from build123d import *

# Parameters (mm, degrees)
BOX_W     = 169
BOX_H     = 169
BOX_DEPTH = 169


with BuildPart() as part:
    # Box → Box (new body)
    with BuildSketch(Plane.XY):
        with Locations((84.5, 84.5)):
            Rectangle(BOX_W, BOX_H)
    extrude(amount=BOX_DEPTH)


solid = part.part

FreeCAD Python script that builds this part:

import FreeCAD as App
import Part
import Sketcher
from FreeCAD import Vector


def add_polygon(sketch, points):
    """Adds a closed chain of lines whose ends are joined by coincident constraints."""
    first, n = sketch.GeometryCount, len(points)
    for a, b in zip(points, points[1:] + points[:1]):
        sketch.addGeometry(Part.LineSegment(App.Vector(*a, 0), App.Vector(*b, 0)), False)
    for i in range(n):
        sketch.addConstraint(Sketcher.Constraint("Coincident", first + i, 2, first + (i + 1) % n, 1))

doc = App.newDocument("Part")
body = doc.addObject("PartDesign::Body", "Body")

# Sketch on XY plane
sketch1 = body.newObject("Sketcher::SketchObject", "Sketch")
sketch1.AttachmentSupport = (doc.getObject("XY_Plane"), [""])
sketch1.MapMode = "FlatFace"
add_polygon(sketch1, [(0, 169), (0, 0), (169, 0), (169, 169)])  # lines 0-3
sketch1.addConstraint(Sketcher.Constraint("Vertical", 0))
sketch1.addConstraint(Sketcher.Constraint("Horizontal", 1))
sketch1.addConstraint(Sketcher.Constraint("Vertical", 2))
sketch1.addConstraint(Sketcher.Constraint("Horizontal", 3))
sketch1.addConstraint(Sketcher.Constraint("Coincident", 0, 2, -1, 1))
sketch1.addConstraint(Sketcher.Constraint("Equal", 3, 0))
sketch1.addConstraint(Sketcher.Constraint("DistanceX", 1, 1, 1, 2, 169.0))
pad1 = body.newObject("PartDesign::Pad", "Pad")
pad1.Profile = sketch1
pad1.Length = 169

doc.recompute()
